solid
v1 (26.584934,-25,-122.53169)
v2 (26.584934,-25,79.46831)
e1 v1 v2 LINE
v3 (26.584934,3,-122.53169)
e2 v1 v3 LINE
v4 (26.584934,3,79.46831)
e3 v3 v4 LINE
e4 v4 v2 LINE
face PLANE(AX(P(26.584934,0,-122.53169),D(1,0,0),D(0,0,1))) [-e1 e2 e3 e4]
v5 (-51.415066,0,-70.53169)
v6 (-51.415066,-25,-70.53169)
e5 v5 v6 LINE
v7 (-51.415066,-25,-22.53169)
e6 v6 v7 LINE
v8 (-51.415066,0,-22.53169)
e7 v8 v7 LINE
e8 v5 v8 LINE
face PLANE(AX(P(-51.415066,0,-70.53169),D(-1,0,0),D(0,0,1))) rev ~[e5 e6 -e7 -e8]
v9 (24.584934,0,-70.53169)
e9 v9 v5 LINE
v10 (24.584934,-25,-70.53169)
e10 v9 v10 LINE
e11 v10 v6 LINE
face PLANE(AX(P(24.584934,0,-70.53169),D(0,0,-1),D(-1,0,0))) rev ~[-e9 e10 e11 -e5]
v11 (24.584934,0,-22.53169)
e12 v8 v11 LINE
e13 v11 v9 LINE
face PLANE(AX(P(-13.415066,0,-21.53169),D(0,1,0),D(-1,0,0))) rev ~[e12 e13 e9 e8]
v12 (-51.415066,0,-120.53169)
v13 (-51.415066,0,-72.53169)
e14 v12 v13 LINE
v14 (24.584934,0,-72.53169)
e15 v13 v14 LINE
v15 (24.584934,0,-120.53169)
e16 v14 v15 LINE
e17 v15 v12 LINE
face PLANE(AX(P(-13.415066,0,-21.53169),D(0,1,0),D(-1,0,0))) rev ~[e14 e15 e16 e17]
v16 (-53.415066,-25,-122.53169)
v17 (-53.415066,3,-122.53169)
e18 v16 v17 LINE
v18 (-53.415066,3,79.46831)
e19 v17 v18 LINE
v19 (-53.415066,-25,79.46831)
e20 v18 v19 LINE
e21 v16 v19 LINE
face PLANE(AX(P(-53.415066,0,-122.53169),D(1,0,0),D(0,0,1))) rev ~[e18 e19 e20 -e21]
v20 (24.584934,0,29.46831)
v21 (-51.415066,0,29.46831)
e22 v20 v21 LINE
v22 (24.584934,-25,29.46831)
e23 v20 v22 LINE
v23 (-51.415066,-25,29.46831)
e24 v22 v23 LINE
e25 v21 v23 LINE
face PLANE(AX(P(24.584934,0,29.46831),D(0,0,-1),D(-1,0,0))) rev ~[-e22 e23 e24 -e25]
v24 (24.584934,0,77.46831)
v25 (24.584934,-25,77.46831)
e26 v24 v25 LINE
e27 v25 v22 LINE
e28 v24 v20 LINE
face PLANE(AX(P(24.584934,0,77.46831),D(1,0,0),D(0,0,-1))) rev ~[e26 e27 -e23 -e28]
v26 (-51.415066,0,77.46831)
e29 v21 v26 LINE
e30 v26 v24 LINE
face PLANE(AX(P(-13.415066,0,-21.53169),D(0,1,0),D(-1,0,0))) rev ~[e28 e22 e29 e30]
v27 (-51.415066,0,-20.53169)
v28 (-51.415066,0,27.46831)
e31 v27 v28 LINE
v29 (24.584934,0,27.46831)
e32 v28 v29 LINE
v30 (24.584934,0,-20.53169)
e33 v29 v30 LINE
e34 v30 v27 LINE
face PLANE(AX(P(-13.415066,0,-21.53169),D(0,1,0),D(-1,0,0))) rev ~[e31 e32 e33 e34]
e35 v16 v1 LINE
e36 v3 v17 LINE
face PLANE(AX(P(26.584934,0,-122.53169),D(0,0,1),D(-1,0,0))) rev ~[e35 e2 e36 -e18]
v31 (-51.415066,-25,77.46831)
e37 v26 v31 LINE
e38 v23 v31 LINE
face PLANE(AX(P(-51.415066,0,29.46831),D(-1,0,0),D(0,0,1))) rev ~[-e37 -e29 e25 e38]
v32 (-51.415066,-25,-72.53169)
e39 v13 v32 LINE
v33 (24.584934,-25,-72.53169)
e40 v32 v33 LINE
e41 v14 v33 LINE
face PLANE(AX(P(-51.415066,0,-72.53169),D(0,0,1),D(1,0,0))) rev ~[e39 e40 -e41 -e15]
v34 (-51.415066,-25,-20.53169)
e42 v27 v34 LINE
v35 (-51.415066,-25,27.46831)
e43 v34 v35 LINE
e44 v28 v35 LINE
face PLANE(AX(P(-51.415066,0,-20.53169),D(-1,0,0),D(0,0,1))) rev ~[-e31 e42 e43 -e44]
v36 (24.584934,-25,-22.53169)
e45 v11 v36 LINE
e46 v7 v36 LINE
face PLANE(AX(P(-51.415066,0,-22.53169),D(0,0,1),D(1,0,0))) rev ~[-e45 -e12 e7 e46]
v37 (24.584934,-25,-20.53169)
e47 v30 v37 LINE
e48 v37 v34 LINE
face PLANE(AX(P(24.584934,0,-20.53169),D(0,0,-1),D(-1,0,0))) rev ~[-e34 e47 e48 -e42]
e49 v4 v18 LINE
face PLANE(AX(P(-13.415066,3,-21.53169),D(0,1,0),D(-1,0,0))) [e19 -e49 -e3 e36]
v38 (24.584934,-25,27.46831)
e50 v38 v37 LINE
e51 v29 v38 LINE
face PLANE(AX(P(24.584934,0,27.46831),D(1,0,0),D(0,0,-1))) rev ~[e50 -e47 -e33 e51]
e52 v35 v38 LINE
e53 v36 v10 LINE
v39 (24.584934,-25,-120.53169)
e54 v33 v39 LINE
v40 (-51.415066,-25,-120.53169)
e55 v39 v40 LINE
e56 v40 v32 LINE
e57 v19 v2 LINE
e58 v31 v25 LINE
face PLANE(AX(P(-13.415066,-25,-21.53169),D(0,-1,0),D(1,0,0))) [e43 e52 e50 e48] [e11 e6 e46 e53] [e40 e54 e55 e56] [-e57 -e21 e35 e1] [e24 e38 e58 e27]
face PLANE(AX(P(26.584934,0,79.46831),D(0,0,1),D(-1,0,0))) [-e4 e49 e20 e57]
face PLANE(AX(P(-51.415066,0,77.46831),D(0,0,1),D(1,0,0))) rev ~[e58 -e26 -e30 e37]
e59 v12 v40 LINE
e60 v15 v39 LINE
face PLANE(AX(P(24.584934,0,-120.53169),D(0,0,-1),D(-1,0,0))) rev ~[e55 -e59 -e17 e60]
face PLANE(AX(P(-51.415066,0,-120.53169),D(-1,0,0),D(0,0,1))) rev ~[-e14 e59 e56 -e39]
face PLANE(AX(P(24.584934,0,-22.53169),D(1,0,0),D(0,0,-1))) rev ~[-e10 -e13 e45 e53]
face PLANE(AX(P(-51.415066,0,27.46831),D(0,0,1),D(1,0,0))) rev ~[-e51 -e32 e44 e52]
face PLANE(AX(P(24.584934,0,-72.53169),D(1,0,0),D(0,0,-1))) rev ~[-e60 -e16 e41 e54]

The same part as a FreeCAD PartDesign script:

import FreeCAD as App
import Part
import Sketcher

V = App.Vector
Q = App.Units.Quantity


def add_polygon(sketch, points):
    """Adds a closed chain of lines whose ends are joined by coincident constraints."""
    first, n = sketch.GeometryCount, len(points)
    for a, b in zip(points, points[1:] + points[:1]):
        sketch.addGeometry(Part.LineSegment(App.Vector(*a, 0), App.Vector(*b, 0)), False)
    for i in range(n):
        sketch.addConstraint(Sketcher.Constraint("Coincident", first + i, 2, first + (i + 1) % n, 1))

doc = App.newDocument("Part")
body = doc.addObject("PartDesign::Body", "Body")

# Sketch on XZ plane
sketch1 = body.newObject("Sketcher::SketchObject", "Sketch")
sketch1.AttachmentSupport = (doc.getObject("XZ_Plane"), [""])
sketch1.MapMode = "FlatFace"
add_polygon(sketch1, [(-53.415066, 79.46831), (-53.415066, -122.53169), (26.584934, -122.53169), (26.584934, 79.46831)])  # lines 0-3
add_polygon(sketch1, [(24.584934, -72.53169), (24.584934, -120.53169), (-51.415066, -120.53169), (-51.415066, -72.53169)])  # lines 4-7
add_polygon(sketch1, [(24.584934, -70.53169), (-51.415066, -70.53169), (-51.415066, -22.53169), (24.584934, -22.53169)])  # lines 8-11
add_polygon(sketch1, [(24.584934, 27.46831), (24.584934, -20.53169), (-51.415066, -20.53169), (-51.415066, 27.46831)])  # lines 12-15
add_polygon(sketch1, [(24.584934, 29.46831), (-51.415066, 29.46831), (-51.415066, 77.46831), (24.584934, 77.46831)])  # lines 16-19
sketch1.addConstraint(Sketcher.Constraint("Vertical", 0))
sketch1.addConstraint(Sketcher.Constraint("Horizontal", 1))
sketch1.addConstraint(Sketcher.Constraint("Vertical", 2))
sketch1.addConstraint(Sketcher.Constraint("Horizontal", 3))
sketch1.addConstraint(Sketcher.Constraint("Vertical", 4))
sketch1.addConstraint(Sketcher.Constraint("Horizontal", 5))
sketch1.addConstraint(Sketcher.Constraint("Vertical", 6))
sketch1.addConstraint(Sketcher.Constraint("Horizontal", 7))
sketch1.addConstraint(Sketcher.Constraint("Horizontal", 8))
sketch1.addConstraint(Sketcher.Constraint("Vertical", 9))
sketch1.addConstraint(Sketcher.Constraint("Horizontal", 10))
sketch1.addConstraint(Sketcher.Constraint("Vertical", 11))
sketch1.addConstraint(Sketcher.Constraint("Vertical", 12))
sketch1.addConstraint(Sketcher.Constraint("Horizontal", 13))
sketch1.addConstraint(Sketcher.Constraint("Vertical", 14))
sketch1.addConstraint(Sketcher.Constraint("Horizontal", 15))
sketch1.addConstraint(Sketcher.Constraint("Horizontal", 16))
sketch1.addConstraint(Sketcher.Constraint("Vertical", 17))
sketch1.addConstraint(Sketcher.Constraint("Horizontal", 18))
sketch1.addConstraint(Sketcher.Constraint("Vertical", 19))
sketch1.addConstraint(Sketcher.Constraint("Vertical", 6, 2, 8, 2))
sketch1.addConstraint(Sketcher.Constraint("Vertical", 7, 2, 10, 2))
sketch1.addConstraint(Sketcher.Constraint("Vertical", 11, 2, 12, 2))
sketch1.addConstraint(Sketcher.Constraint("Vertical", 9, 2, 13, 2))
sketch1.addConstraint(Sketcher.Constraint("Vertical", 14, 2, 16, 2))
sketch1.addConstraint(Sketcher.Constraint("Vertical", 15, 2, 18, 2))
sketch1.addConstraint(Sketcher.Constraint("Equal", 6, 9))
sketch1.addConstraint(Sketcher.Constraint("Equal", 11, 12))
sketch1.addConstraint(Sketcher.Constraint("Equal", 14, 17))
sketch1.addConstraint(Sketcher.Constraint("DistanceX", 1, 1, 1, 2, Q("80 mm")))
sketch1.addConstraint(Sketcher.Constraint("DistanceX", 5, 2, 5, 1, Q("76 mm")))
sketch1.addConstraint(Sketcher.Constraint("DistanceY", 0, 2, 0, 1, Q("202 mm")))
sketch1.addConstraint(Sketcher.Constraint("DistanceY", 4, 2, 4, 1, Q("48 mm")))
sketch1.addConstraint(Sketcher.Constraint("DistanceX", 4, 2, 1, 2, Q("2 mm")))
sketch1.addConstraint(Sketcher.Constraint("DistanceY", 1, 2, 4, 2, Q("2 mm")))
sketch1.addConstraint(Sketcher.Constraint("DistanceY", 6, 2, 8, 2, Q("2 mm")))
sketch1.addConstraint(Sketcher.Constraint("DistanceY", 10, 2, 12, 2, Q("2 mm")))
sketch1.addConstraint(Sketcher.Constraint("DistanceY", 14, 2, 16, 2, Q("2 mm")))
sketch1.addConstraint(Sketcher.Constraint("DistanceY", 0, 2, -1, 1, Q("122.53169 mm")))
sketch1.addConstraint(Sketcher.Constraint("DistanceX", 0, 2, -1, 1, Q("53.415066 mm")))
pad1 = body.newObject("PartDesign::Pad", "Pad")
pad1.Profile = sketch1
pad1.Length = 25

# Sketch on XZ plane
sketch2 = body.newObject("Sketcher::SketchObject", "Sketch001")
sketch2.AttachmentSupport = (doc.getObject("XZ_Plane"), [""])
sketch2.MapMode = "FlatFace"
add_polygon(sketch2, [(26.584934, 79.46831), (26.584934, -122.53169), (-53.415066, -122.53169), (-53.415066, 79.46831)])  # lines 0-3
sketch2.addConstraint(Sketcher.Constraint("Vertical", 0))
sketch2.addConstraint(Sketcher.Constraint("Horizontal", 1))
sketch2.addConstraint(Sketcher.Constraint("Vertical", 2))
sketch2.addConstraint(Sketcher.Constraint("Horizontal", 3))
sketch2.addConstraint(Sketcher.Constraint("DistanceX", 1, 2, 1, 1, Q("80 mm")))
sketch2.addConstraint(Sketcher.Constraint("DistanceY", 0, 2, 0, 1, Q("202 mm")))
sketch2.addConstraint(Sketcher.Constraint("DistanceY", 0, 2, -1, 1, Q("122.53169 mm")))
sketch2.addConstraint(Sketcher.Constraint("DistanceX", -1, 1, 0, 2, Q("26.584934 mm")))
pad2 = body.newObject("PartDesign::Pad", "Pad001")
pad2.Profile = sketch2
pad2.Length = 3
pad2.Reversed = True

doc.recompute()
